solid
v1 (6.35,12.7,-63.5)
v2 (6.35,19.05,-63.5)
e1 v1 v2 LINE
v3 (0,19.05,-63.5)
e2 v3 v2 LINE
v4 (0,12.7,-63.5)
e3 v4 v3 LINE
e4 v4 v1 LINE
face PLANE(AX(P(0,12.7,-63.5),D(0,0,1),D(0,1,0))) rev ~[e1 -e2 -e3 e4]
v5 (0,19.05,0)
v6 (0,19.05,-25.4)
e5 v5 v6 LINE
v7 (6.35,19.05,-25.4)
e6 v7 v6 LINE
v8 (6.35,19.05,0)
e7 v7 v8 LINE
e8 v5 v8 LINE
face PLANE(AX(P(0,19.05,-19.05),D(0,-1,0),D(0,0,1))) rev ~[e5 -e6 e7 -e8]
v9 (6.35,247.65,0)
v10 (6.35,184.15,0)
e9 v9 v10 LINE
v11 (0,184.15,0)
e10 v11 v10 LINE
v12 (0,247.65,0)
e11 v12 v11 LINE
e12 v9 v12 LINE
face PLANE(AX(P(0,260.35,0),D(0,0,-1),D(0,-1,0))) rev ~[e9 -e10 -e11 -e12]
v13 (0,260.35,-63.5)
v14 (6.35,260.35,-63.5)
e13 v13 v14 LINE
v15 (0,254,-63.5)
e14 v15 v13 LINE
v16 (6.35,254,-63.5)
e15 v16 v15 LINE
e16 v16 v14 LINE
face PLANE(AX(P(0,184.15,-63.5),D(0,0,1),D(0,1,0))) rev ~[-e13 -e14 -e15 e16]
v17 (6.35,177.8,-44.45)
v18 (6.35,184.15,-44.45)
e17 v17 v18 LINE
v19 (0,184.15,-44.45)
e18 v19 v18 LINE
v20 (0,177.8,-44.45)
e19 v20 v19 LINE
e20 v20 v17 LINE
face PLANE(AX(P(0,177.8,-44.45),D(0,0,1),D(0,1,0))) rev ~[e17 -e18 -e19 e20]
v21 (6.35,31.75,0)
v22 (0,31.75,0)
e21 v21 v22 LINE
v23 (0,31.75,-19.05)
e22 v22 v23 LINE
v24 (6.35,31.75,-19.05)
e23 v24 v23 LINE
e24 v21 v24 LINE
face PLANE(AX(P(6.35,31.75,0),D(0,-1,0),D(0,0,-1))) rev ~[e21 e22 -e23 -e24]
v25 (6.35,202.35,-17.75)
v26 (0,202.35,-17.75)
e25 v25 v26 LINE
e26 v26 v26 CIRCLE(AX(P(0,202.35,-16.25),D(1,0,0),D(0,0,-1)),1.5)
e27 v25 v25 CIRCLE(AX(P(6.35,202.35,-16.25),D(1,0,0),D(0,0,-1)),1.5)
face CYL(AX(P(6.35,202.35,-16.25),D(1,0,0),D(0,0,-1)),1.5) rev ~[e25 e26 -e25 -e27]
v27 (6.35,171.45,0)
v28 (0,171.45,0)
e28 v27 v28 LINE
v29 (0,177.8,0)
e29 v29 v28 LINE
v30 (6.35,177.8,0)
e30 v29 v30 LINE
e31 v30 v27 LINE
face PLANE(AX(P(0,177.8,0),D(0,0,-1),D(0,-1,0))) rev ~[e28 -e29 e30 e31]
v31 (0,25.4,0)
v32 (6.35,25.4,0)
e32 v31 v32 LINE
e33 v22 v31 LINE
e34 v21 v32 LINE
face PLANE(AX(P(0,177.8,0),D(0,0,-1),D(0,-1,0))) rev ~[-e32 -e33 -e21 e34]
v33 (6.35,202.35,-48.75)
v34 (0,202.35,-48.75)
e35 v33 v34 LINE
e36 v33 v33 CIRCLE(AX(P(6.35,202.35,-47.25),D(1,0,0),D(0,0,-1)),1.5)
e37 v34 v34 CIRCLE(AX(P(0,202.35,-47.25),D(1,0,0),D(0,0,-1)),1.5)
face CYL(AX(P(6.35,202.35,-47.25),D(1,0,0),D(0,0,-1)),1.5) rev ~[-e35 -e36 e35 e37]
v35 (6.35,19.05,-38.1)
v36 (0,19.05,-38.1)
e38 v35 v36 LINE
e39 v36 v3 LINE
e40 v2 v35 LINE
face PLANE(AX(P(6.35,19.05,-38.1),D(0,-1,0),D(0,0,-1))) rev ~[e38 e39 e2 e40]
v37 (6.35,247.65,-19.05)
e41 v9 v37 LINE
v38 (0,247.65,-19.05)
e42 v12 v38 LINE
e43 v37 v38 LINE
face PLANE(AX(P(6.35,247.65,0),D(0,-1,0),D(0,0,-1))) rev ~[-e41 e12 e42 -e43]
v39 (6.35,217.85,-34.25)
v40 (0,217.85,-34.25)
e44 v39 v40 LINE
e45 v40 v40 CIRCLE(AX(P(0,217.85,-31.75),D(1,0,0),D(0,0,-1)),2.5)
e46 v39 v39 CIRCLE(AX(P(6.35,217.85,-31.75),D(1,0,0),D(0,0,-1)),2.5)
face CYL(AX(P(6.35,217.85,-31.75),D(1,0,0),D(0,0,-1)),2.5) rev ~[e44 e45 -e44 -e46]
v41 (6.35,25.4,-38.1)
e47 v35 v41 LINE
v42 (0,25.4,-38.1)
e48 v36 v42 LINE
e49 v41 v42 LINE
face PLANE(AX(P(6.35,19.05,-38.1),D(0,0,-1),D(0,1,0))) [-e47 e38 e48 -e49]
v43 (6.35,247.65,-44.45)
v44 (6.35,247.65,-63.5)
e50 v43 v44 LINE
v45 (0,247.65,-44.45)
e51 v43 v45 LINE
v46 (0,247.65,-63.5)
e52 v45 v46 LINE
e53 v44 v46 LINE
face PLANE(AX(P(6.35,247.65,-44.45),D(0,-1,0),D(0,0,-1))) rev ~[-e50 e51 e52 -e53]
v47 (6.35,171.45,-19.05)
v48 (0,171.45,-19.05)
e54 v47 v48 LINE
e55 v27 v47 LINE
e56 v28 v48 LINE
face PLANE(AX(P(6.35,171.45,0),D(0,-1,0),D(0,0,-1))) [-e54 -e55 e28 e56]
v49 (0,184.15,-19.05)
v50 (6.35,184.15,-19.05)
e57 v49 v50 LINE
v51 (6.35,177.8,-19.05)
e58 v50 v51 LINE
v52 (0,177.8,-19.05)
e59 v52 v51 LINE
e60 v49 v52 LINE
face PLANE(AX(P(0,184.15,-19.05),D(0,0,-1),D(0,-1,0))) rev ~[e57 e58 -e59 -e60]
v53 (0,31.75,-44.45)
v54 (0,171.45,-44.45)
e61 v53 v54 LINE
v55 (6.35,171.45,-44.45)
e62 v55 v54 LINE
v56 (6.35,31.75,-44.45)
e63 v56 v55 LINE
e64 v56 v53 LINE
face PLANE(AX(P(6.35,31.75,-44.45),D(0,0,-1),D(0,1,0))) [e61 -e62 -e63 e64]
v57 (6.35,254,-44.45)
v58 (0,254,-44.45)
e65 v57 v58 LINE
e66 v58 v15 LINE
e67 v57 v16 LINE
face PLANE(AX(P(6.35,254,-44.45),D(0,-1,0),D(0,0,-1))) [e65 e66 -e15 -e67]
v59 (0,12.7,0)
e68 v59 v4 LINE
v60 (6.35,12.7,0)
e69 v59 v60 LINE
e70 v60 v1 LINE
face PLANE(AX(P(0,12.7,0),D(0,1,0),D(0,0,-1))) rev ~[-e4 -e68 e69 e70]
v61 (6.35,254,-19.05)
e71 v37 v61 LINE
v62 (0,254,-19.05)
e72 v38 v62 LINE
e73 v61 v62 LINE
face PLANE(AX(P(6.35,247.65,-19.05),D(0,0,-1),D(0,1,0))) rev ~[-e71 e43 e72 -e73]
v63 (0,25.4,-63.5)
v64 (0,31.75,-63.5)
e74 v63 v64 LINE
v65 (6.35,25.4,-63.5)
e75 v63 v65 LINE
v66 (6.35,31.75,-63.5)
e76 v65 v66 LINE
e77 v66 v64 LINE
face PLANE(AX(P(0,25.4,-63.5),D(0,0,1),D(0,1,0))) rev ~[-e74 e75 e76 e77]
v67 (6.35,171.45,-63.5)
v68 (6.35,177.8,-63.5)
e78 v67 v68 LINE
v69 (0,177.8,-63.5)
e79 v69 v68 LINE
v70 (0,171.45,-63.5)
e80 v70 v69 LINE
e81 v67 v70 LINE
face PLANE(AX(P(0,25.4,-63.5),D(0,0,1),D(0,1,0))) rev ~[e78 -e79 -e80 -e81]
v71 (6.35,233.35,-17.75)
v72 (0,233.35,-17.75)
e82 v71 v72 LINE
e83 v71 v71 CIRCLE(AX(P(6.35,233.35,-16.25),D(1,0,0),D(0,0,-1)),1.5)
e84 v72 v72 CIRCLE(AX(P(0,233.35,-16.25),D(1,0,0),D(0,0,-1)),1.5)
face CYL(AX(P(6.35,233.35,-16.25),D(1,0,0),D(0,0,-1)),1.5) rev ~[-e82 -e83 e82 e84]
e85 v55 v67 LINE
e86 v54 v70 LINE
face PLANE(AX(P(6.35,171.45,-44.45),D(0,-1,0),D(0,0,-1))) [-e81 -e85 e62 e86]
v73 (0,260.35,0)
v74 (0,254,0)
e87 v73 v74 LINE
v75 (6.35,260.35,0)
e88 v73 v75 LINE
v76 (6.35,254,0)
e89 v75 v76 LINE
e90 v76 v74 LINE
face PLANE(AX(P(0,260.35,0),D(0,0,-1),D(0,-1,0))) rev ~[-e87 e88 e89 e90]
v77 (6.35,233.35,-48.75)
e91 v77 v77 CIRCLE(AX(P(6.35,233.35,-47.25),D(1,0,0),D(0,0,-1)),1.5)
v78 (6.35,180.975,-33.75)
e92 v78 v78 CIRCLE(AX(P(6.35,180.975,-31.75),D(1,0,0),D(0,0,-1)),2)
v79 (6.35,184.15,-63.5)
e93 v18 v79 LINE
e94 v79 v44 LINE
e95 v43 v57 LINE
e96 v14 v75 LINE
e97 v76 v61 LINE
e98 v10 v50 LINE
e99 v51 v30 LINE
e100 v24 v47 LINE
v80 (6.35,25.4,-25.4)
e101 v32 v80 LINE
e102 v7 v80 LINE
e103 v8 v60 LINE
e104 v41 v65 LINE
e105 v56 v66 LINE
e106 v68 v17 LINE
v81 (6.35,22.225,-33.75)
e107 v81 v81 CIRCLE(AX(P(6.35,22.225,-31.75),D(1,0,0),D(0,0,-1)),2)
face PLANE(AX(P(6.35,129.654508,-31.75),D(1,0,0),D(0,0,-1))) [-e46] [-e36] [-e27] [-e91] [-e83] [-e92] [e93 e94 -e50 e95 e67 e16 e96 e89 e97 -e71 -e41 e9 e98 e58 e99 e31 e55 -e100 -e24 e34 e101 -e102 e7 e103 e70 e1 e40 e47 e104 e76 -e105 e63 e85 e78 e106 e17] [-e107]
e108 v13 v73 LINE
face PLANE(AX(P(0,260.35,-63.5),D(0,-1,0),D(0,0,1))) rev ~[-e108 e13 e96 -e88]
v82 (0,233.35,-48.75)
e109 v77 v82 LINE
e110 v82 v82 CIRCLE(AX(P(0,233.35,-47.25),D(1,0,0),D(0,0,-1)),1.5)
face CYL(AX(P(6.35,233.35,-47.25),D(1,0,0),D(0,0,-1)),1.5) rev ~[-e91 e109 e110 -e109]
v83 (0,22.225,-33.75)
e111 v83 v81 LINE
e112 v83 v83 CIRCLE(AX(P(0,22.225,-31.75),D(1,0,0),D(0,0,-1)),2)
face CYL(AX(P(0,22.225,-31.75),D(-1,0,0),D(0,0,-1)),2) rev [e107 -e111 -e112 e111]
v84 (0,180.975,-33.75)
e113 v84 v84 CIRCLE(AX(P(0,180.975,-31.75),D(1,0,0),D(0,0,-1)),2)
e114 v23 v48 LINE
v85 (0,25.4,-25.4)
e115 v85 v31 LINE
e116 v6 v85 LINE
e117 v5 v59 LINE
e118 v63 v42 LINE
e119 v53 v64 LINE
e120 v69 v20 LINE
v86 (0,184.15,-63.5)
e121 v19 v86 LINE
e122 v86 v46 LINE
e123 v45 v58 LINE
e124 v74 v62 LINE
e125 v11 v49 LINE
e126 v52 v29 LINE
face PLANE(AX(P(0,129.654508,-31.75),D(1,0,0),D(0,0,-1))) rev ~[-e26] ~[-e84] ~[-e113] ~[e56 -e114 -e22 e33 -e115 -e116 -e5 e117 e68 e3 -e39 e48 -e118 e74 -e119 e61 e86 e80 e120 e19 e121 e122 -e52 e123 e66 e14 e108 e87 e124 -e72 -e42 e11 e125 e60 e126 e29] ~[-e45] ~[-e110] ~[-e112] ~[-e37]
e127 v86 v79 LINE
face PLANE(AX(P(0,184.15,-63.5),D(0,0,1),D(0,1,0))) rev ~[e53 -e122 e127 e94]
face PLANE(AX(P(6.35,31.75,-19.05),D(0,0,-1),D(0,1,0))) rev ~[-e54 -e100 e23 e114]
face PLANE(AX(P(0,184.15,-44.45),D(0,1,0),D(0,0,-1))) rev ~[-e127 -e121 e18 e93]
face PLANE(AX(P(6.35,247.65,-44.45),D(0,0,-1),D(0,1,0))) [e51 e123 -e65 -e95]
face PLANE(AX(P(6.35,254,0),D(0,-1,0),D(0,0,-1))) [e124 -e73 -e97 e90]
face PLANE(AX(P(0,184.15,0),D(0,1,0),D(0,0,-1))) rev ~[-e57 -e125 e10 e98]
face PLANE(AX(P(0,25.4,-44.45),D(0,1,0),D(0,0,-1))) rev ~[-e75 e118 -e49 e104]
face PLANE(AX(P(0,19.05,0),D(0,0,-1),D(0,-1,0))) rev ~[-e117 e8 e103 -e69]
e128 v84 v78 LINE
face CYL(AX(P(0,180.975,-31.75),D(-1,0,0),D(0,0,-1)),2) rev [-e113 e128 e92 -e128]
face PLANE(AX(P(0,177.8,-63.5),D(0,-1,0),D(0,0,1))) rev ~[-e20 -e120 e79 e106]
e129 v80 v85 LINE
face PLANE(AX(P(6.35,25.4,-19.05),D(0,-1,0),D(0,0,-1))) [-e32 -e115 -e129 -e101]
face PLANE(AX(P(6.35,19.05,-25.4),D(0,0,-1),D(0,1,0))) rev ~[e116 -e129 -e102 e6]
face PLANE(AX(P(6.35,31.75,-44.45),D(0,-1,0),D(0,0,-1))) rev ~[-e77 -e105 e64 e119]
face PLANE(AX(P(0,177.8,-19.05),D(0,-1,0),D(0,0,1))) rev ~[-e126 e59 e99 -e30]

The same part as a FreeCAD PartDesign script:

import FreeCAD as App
import Part
import Sketcher
from FreeCAD import Vector
Q = App.Units.Quantity


def add_polygon(sketch, points):
    """Adds a closed chain of lines whose ends are joined by coincident constraints."""
    first, n = sketch.GeometryCount, len(points)
    for a, b in zip(points, points[1:] + points[:1]):
        sketch.addGeometry(Part.LineSegment(App.Vector(*a, 0), App.Vector(*b, 0)), False)
    for i in range(n):
        sketch.addConstraint(Sketcher.Constraint("Coincident", first + i, 2, first + (i + 1) % n, 1))

doc = App.newDocument("Part")
body = doc.addObject("PartDesign::Body", "Body")

# Sketch on YZ plane
sketch1 = body.newObject("Sketcher::SketchObject", "Sketch")
sketch1.AttachmentSupport = (doc.getObject("YZ_Plane"), [""])
sketch1.MapMode = "FlatFace"
add_polygon(sketch1, [(184.2, -63.5), (260.4, -63.5), (260.4, 0), (184.2, 0), (184.2, -19.1), (177.8, -19.1), (177.8, 0), (25.4, 0), (25.4, -19.1), (19.1, -19.1), (19.1, 0), (12.7, 0), (12.7, -63.5), (19.1, -63.5), (19.1, -44.5), (25.4, -44.5), (25.4, -63.5), (177.8, -63.5), (177.8, -44.5), (184.2, -44.5)])  # lines 0-19
sketch1.addGeometry(Part.Circle(Vector(22.2, -31.8, 0), Vector(0, 0, 1), 2), False)  # 20
sketch1.addGeometry(Part.Circle(Vector(181, -31.8, 0), Vector(0, 0, 1), 2), False)  # 21
sketch1.addConstraint(Sketcher.Constraint("Horizontal", 0))
sketch1.addConstraint(Sketcher.Constraint("Vertical", 1))
sketch1.addConstraint(Sketcher.Constraint("Horizontal", 2))
sketch1.addConstraint(Sketcher.Constraint("Vertical", 3))
sketch1.addConstraint(Sketcher.Constraint("Horizontal", 4))
sketch1.addConstraint(Sketcher.Constraint("Vertical", 5))
sketch1.addConstraint(Sketcher.Constraint("Horizontal", 6))
sketch1.addConstraint(Sketcher.Constraint("Vertical", 7))
sketch1.addConstraint(Sketcher.Constraint("Horizontal", 8))
sketch1.addConstraint(Sketcher.Constraint("Vertical", 9))
sketch1.addConstraint(Sketcher.Constraint("Horizontal", 10))
sketch1.addConstraint(Sketcher.Constraint("Vertical", 11))
sketch1.addConstraint(Sketcher.Constraint("Horizontal", 12))
sketch1.addConstraint(Sketcher.Constraint("Vertical", 13))
sketch1.addConstraint(Sketcher.Constraint("Horizontal", 14))
sketch1.addConstraint(Sketcher.Constraint("Vertical", 15))
sketch1.addConstraint(Sketcher.Constraint("Horizontal", 16))
sketch1.addConstraint(Sketcher.Constraint("Vertical", 17))
sketch1.addConstraint(Sketcher.Constraint("Horizontal", 18))
sketch1.addConstraint(Sketcher.Constraint("Vertical", 19))
sketch1.addConstraint(Sketcher.Constraint("Equal", 20, 21))
sketch1.addConstraint(Sketcher.Constraint("PointOnObject", 1, 2, -1))
sketch1.addConstraint(Sketcher.Constraint("PointOnObject", 5, 2, -1))
sketch1.addConstraint(Sketcher.Constraint("PointOnObject", 9, 2, -1))
sketch1.addConstraint(Sketcher.Constraint("Horizontal", 20, 3, 21, 3))
sketch1.addConstraint(Sketcher.Constraint("Horizontal", 4, 2, 7, 2))
sketch1.addConstraint(Sketcher.Constraint("Horizontal", 0, 2, 11, 2))
sketch1.addConstraint(Sketcher.Constraint("Horizontal", 12, 2, 15, 2))
sketch1.addConstraint(Sketcher.Constraint("Horizontal", 14, 2, 17, 2))
sketch1.addConstraint(Sketcher.Constraint("Vertical", 9, 2, 12, 2))
sketch1.addConstraint(Sketcher.Constraint("Vertical", 7, 2, 14, 2))
sketch1.addConstraint(Sketcher.Constraint("Vertical", 5, 2, 16, 2))
sketch1.addConstraint(Sketcher.Constraint("Vertical", 3, 2, 18, 2))
sketch1.addConstraint(Sketcher.Constraint("Equal", 4, 8))
sketch1.addConstraint(Sketcher.Constraint("Equal", 8, 10))
sketch1.addConstraint(Sketcher.Constraint("Equal", 9, 13))
sketch1.addConstraint(Sketcher.Constraint("DistanceX", 0, 1, 0, 2, Q("3 in")))
sketch1.addConstraint(Sketcher.Constraint("DistanceX", 6, 2, 6, 1, Q("6 in")))
sketch1.addConstraint(Sketcher.Constraint("DistanceY", 1, 1, 1, 2, Q("2.5 in")))
sketch1.addConstraint(Sketcher.Constraint("DistanceX", -1, 1, 4, 2, Q("7 in")))
sketch1.addConstraint(Sketcher.Constraint("DistanceY", 13, 2, 8, 2, Q("1 in")))
sketch1.addConstraint(Sketcher.Constraint("DistanceX", 4, 2, 4, 1, Q("0.25 in")))
sketch1.addConstraint(Sketcher.Constraint("DistanceY", 21, 3, 3, 2, Q("0.5 in")))
sketch1.addConstraint(Sketcher.Constraint("Diameter", 20, Q("4 mm")))
sketch1.addConstraint(Sketcher.Constraint("DistanceX", 20, 3, 21, 3, Q("6.25 in")))
sketch1.addConstraint(Sketcher.Constraint("DistanceX", -1, 1, 20, 3, Q("0.875 in")))
pad1 = body.newObject("PartDesign::Pad", "Pad")
pad1.Profile = sketch1
pad1.Length = Q("0.25 in")

# Sketch on YZ plane
sketch2 = body.newObject("Sketcher::SketchObject", "Sketch001")
sketch2.AttachmentSupport = (doc.getObject("YZ_Plane"), [""])
sketch2.MapMode = "FlatFace"
sketch2.AttachmentOffset = App.Placement(Vector(0, 0, 0.25 * 25.4), App.Rotation())
add_polygon(sketch2, [(171, 0), (32, 0), (32, -19), (171, -19)])  # lines 0-3
add_polygon(sketch2, [(171, -44), (32, -44), (32, -64), (171, -64)])  # lines 4-7
sketch2.addConstraint(Sketcher.Constraint("Horizontal", 0))
sketch2.addConstraint(Sketcher.Constraint("Vertical", 1))
sketch2.addConstraint(Sketcher.Constraint("Horizontal", 2))
sketch2.addConstraint(Sketcher.Constraint("Vertical", 3))
sketch2.addConstraint(Sketcher.Constraint("Horizontal", 4))
sketch2.addConstraint(Sketcher.Constraint("Vertical", 5))
sketch2.addConstraint(Sketcher.Constraint("Horizontal", 6))
sketch2.addConstraint(Sketcher.Constraint("Vertical", 7))
sketch2.addConstraint(Sketcher.Constraint("PointOnObject", 0, 2, -1))
sketch2.addConstraint(Sketcher.Constraint("Vertical", 1, 2, 4, 2))
sketch2.addConstraint(Sketcher.Constraint("Vertical", 3, 2, 6, 2))
sketch2.addConstraint(Sketcher.Constraint("Equal", 3, 5))
sketch2.addConstraint(Sketcher.Constraint("DistanceX", 0, 2, 0, 1, Q("5.5 in")))
sketch2.addConstraint(Sketcher.Constraint("DistanceY", 4, 2, 1, 2, Q("1 in")))
sketch2.addConstraint(Sketcher.Constraint("DistanceY", 1, 2, 1, 1, Q("0.75 in")))
sketch2.addConstraint(Sketcher.Constraint("DistanceX", -1, 1, 0, 2, Q("1.25 in")))
pocket1 = body.newObject("PartDesign::Pocket", "Pocket")
pocket1.Profile = sketch2
pocket1.Length = Q("0.25 in")

# Sketch on YZ plane
sketch3 = body.newObject("Sketcher::SketchObject", "Sketch002")
sketch3.AttachmentSupport = (doc.getObject("YZ_Plane"), [""])
sketch3.MapMode = "FlatFace"
sketch3.AttachmentOffset = App.Placement(Vector(0, 0, 0.25 * 25.4), App.Rotation())
sketch3.addGeometry(Part.Circle(Vector(233.4, -47.3, 0), Vector(0, 0, 1), 1.5), False)
sketch3.addGeometry(Part.Circle(Vector(217.9, -31.8, 0), Vector(0, 0, 1), 2.5), False)
sketch3.addGeometry(Part.Circle(Vector(202.3, -47.3, 0), Vector(0, 0, 1), 1.5), False)
sketch3.addGeometry(Part.Circle(Vector(202.3, -16.2, 0), Vector(0, 0, 1), 1.5), False)
sketch3.addGeometry(Part.Circle(Vector(233.4, -16.2, 0), Vector(0, 0, 1), 1.5), False)
sketch3.addConstraint(Sketcher.Constraint("Equal", 0, 2))
sketch3.addConstraint(Sketcher.Constraint("Equal", 2, 3))
sketch3.addConstraint(Sketcher.Constraint("Equal", 3, 4))
sketch3.addConstraint(Sketcher.Constraint("Horizontal", 0, 3, 2, 3))
sketch3.addConstraint(Sketcher.Constraint("Horizontal", 3, 3, 4, 3))
sketch3.addConstraint(Sketcher.Constraint("Vertical", 2, 3, 3, 3))
sketch3.addConstraint(Sketcher.Constraint("Vertical", 0, 3, 4, 3))
sketch3.addConstraint(Sketcher.Constraint("Diameter", 0, Q("3 mm")))
sketch3.addConstraint(Sketcher.Constraint("Diameter", 1, Q("5 mm")))
sketch3.addConstraint(Sketcher.Constraint("DistanceY", 1, 3, -1, 1, Q("1.25 in")))
sketch3.addConstraint(Sketcher.Constraint("DistanceX", -1, 1, 0, 3, Q("233.35 mm")))
sketch3.addConstraint(Sketcher.Constraint("DistanceY", 0, 3, -1, 1, Q("47.25 mm")))
sketch3.addConstraint(Sketcher.Constraint("DistanceX", -1, 1, 1, 3, Q("217.85 mm")))
sketch3.addConstraint(Sketcher.Constraint("DistanceX", -1, 1, 2, 3, Q("202.35 mm")))
sketch3.addConstraint(Sketcher.Constraint("DistanceY", 3, 3, -1, 1, Q("16.25 mm")))
pocket2 = body.newObject("PartDesign::Pocket", "Pocket001")
pocket2.Profile = sketch3
pocket2.Length = Q("0.25 in")

# Sketch on YZ plane
sketch4 = body.newObject("Sketcher::SketchObject", "Sketch003")
sketch4.AttachmentSupport = (doc.getObject("YZ_Plane"), [""])
sketch4.MapMode = "FlatFace"
sketch4.AttachmentOffset = App.Placement(Vector(0, 0, 0.25 * 25.4), App.Rotation())
add_polygon(sketch4, [(25, -19), (19, -19), (19, -25), (25, -25)])  # lines 0-3
add_polygon(sketch4, [(25, -38), (19, -38), (19, -44), (25, -44)])  # lines 4-7
sketch4.addConstraint(Sketcher.Constraint("Horizontal", 0))
sketch4.addConstraint(Sketcher.Constraint("Vertical", 1))
sketch4.addConstraint(Sketcher.Constraint("Horizontal", 2))
sketch4.addConstraint(Sketcher.Constraint("Vertical", 3))
sketch4.addConstraint(Sketcher.Constraint("Horizontal", 4))
sketch4.addConstraint(Sketcher.Constraint("Vertical", 5))
sketch4.addConstraint(Sketcher.Constraint("Horizontal", 6))
sketch4.addConstraint(Sketcher.Constraint("Vertical", 7))
sketch4.addConstraint(Sketcher.Constraint("Vertical", 1, 2, 4, 2))
sketch4.addConstraint(Sketcher.Constraint("Vertical", 3, 2, 6, 2))
sketch4.addConstraint(Sketcher.Constraint("Equal", 6, 1))
sketch4.addConstraint(Sketcher.Constraint("Equal", 3, 5))
sketch4.addConstraint(Sketcher.Constraint("DistanceY", 1, 2, -1, 1, Q("1 in")))
sketch4.addConstraint(Sketcher.Constraint("DistanceX", -1, 1, 2, 2, Q("1 in")))
sketch4.addConstraint(Sketcher.Constraint("DistanceY", 5, 2, 0, 2, Q("1 in")))
sketch4.addConstraint(Sketcher.Constraint("DistanceX", 0, 2, 0, 1, Q("0.25 in")))
pocket3 = body.newObject("PartDesign::Pocket", "Pocket002")
pocket3.Profile = sketch4
pocket3.Length = Q("0.25 in")

# Sketch on YZ plane
sketch5 = body.newObject("Sketcher::SketchObject", "Sketch004")
sketch5.AttachmentSupport = (doc.getObject("YZ_Plane"), [""])
sketch5.MapMode = "FlatFace"
sketch5.AttachmentOffset = App.Placement(Vector(0, 0, 0.25 * 25.4), App.Rotation())
add_polygon(sketch5, [(254, 0), (248, 0), (248, -19), (254, -19)])  # lines 0-3
add_polygon(sketch5, [(254, -44), (248, -44), (248, -64), (254, -64)])  # lines 4-7
sketch5.addConstraint(Sketcher.Constraint("Horizontal", 0))
sketch5.addConstraint(Sketcher.Constraint("Vertical", 1))
sketch5.addConstraint(Sketcher.Constraint("Horizontal", 2))
sketch5.addConstraint(Sketcher.Constraint("Vertical", 3))
sketch5.addConstraint(Sketcher.Constraint("Horizontal", 4))
sketch5.addConstraint(Sketcher.Constraint("Vertical", 5))
sketch5.addConstraint(Sketcher.Constraint("Horizontal", 6))
sketch5.addConstraint(Sketcher.Constraint("Vertical", 7))
sketch5.addConstraint(Sketcher.Constraint("PointOnObject", 0, 2, -1))
sketch5.addConstraint(Sketcher.Constraint("Vertical", 1, 2, 4, 2))
sketch5.addConstraint(Sketcher.Constraint("Vertical", 3, 2, 6, 2))
sketch5.addConstraint(Sketcher.Constraint("Equal", 3, 5))
sketch5.addConstraint(Sketcher.Constraint("DistanceX", -1, 1, 2, 2, Q("10 in")))
sketch5.addConstraint(Sketcher.Constraint("DistanceY", 4, 2, 1, 2, Q("1 in")))
sketch5.addConstraint(Sketcher.Constraint("DistanceX", 0, 2, 0, 1, Q("0.25 in")))
sketch5.addConstraint(Sketcher.Constraint("DistanceY", 1, 2, 1, 1, Q("0.75 in")))
pocket4 = body.newObject("PartDesign::Pocket", "Pocket003")
pocket4.Profile = sketch5
pocket4.Length = Q("0.25 in")

doc.recompute()
